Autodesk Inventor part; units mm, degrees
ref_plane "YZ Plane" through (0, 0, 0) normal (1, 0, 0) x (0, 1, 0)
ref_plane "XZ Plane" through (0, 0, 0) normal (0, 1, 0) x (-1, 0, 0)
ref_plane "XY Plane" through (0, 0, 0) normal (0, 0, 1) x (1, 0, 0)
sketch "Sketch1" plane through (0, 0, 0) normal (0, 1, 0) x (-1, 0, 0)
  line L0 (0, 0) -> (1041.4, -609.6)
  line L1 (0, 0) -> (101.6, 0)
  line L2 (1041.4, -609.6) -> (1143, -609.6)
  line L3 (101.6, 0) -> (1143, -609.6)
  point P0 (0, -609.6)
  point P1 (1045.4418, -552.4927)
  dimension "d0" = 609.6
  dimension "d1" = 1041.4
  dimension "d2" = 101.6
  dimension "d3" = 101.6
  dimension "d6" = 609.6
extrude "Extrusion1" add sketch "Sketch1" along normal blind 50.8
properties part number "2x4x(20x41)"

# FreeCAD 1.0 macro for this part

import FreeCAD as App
import Part
import Sketcher
from FreeCAD import Vector
Q = App.Units.Quantity

doc = App.newDocument("Part")
body = doc.addObject("PartDesign::Body", "Body")

# Sketch on XZ plane
sketch1 = doc.addObject("Sketcher::SketchObject", "Sketch")
body.addObject(sketch1)
sketch1.AttachmentSupport = (doc.XZ_Plane, [""])
sketch1.MapMode = "FlatFace"
sketch1.addGeometry(Part.LineSegment(Vector(-102, 0, 0), Vector(0, 0, 0)), False)
sketch1.addGeometry(Part.LineSegment(Vector(0, 0, 0), Vector(-1041, -610, 0)), False)
sketch1.addGeometry(Part.LineSegment(Vector(-1041, -610, 0), Vector(-1143, -610, 0)), False)
sketch1.addGeometry(Part.LineSegment(Vector(-1143, -610, 0), Vector(-102, 0, 0)), False)
sketch1.addConstraint(Sketcher.Constraint("Coincident", 0, 2, 1, 1))
sketch1.addConstraint(Sketcher.Constraint("Coincident", 1, 2, 2, 1))
sketch1.addConstraint(Sketcher.Constraint("Coincident", 2, 2, 3, 1))
sketch1.addConstraint(Sketcher.Constraint("Coincident", 3, 2, 0, 1))
sketch1.addConstraint(Sketcher.Constraint("Horizontal", 0))
sketch1.addConstraint(Sketcher.Constraint("Horizontal", 2))
sketch1.addConstraint(Sketcher.Constraint("Coincident", 0, 2, -1, 1))
sketch1.addConstraint(Sketcher.Constraint("Parallel", 1, 3))
sketch1.addConstraint(Sketcher.Constraint("DistanceX", 0, 1, 0, 2, Q("4 in")))
sketch1.addConstraint(Sketcher.Constraint("DistanceX", 1, 2, -1, 1, Q("41 in")))
sketch1.addConstraint(Sketcher.Constraint("DistanceY", 1, 2, -1, 1, Q("24 in")))
pad1 = doc.addObject("PartDesign::Pad", "Pad")
body.addObject(pad1)
pad1.Profile = sketch1
pad1.Length = Q("2 in")
pad1.Reversed = True

doc.recompute()
